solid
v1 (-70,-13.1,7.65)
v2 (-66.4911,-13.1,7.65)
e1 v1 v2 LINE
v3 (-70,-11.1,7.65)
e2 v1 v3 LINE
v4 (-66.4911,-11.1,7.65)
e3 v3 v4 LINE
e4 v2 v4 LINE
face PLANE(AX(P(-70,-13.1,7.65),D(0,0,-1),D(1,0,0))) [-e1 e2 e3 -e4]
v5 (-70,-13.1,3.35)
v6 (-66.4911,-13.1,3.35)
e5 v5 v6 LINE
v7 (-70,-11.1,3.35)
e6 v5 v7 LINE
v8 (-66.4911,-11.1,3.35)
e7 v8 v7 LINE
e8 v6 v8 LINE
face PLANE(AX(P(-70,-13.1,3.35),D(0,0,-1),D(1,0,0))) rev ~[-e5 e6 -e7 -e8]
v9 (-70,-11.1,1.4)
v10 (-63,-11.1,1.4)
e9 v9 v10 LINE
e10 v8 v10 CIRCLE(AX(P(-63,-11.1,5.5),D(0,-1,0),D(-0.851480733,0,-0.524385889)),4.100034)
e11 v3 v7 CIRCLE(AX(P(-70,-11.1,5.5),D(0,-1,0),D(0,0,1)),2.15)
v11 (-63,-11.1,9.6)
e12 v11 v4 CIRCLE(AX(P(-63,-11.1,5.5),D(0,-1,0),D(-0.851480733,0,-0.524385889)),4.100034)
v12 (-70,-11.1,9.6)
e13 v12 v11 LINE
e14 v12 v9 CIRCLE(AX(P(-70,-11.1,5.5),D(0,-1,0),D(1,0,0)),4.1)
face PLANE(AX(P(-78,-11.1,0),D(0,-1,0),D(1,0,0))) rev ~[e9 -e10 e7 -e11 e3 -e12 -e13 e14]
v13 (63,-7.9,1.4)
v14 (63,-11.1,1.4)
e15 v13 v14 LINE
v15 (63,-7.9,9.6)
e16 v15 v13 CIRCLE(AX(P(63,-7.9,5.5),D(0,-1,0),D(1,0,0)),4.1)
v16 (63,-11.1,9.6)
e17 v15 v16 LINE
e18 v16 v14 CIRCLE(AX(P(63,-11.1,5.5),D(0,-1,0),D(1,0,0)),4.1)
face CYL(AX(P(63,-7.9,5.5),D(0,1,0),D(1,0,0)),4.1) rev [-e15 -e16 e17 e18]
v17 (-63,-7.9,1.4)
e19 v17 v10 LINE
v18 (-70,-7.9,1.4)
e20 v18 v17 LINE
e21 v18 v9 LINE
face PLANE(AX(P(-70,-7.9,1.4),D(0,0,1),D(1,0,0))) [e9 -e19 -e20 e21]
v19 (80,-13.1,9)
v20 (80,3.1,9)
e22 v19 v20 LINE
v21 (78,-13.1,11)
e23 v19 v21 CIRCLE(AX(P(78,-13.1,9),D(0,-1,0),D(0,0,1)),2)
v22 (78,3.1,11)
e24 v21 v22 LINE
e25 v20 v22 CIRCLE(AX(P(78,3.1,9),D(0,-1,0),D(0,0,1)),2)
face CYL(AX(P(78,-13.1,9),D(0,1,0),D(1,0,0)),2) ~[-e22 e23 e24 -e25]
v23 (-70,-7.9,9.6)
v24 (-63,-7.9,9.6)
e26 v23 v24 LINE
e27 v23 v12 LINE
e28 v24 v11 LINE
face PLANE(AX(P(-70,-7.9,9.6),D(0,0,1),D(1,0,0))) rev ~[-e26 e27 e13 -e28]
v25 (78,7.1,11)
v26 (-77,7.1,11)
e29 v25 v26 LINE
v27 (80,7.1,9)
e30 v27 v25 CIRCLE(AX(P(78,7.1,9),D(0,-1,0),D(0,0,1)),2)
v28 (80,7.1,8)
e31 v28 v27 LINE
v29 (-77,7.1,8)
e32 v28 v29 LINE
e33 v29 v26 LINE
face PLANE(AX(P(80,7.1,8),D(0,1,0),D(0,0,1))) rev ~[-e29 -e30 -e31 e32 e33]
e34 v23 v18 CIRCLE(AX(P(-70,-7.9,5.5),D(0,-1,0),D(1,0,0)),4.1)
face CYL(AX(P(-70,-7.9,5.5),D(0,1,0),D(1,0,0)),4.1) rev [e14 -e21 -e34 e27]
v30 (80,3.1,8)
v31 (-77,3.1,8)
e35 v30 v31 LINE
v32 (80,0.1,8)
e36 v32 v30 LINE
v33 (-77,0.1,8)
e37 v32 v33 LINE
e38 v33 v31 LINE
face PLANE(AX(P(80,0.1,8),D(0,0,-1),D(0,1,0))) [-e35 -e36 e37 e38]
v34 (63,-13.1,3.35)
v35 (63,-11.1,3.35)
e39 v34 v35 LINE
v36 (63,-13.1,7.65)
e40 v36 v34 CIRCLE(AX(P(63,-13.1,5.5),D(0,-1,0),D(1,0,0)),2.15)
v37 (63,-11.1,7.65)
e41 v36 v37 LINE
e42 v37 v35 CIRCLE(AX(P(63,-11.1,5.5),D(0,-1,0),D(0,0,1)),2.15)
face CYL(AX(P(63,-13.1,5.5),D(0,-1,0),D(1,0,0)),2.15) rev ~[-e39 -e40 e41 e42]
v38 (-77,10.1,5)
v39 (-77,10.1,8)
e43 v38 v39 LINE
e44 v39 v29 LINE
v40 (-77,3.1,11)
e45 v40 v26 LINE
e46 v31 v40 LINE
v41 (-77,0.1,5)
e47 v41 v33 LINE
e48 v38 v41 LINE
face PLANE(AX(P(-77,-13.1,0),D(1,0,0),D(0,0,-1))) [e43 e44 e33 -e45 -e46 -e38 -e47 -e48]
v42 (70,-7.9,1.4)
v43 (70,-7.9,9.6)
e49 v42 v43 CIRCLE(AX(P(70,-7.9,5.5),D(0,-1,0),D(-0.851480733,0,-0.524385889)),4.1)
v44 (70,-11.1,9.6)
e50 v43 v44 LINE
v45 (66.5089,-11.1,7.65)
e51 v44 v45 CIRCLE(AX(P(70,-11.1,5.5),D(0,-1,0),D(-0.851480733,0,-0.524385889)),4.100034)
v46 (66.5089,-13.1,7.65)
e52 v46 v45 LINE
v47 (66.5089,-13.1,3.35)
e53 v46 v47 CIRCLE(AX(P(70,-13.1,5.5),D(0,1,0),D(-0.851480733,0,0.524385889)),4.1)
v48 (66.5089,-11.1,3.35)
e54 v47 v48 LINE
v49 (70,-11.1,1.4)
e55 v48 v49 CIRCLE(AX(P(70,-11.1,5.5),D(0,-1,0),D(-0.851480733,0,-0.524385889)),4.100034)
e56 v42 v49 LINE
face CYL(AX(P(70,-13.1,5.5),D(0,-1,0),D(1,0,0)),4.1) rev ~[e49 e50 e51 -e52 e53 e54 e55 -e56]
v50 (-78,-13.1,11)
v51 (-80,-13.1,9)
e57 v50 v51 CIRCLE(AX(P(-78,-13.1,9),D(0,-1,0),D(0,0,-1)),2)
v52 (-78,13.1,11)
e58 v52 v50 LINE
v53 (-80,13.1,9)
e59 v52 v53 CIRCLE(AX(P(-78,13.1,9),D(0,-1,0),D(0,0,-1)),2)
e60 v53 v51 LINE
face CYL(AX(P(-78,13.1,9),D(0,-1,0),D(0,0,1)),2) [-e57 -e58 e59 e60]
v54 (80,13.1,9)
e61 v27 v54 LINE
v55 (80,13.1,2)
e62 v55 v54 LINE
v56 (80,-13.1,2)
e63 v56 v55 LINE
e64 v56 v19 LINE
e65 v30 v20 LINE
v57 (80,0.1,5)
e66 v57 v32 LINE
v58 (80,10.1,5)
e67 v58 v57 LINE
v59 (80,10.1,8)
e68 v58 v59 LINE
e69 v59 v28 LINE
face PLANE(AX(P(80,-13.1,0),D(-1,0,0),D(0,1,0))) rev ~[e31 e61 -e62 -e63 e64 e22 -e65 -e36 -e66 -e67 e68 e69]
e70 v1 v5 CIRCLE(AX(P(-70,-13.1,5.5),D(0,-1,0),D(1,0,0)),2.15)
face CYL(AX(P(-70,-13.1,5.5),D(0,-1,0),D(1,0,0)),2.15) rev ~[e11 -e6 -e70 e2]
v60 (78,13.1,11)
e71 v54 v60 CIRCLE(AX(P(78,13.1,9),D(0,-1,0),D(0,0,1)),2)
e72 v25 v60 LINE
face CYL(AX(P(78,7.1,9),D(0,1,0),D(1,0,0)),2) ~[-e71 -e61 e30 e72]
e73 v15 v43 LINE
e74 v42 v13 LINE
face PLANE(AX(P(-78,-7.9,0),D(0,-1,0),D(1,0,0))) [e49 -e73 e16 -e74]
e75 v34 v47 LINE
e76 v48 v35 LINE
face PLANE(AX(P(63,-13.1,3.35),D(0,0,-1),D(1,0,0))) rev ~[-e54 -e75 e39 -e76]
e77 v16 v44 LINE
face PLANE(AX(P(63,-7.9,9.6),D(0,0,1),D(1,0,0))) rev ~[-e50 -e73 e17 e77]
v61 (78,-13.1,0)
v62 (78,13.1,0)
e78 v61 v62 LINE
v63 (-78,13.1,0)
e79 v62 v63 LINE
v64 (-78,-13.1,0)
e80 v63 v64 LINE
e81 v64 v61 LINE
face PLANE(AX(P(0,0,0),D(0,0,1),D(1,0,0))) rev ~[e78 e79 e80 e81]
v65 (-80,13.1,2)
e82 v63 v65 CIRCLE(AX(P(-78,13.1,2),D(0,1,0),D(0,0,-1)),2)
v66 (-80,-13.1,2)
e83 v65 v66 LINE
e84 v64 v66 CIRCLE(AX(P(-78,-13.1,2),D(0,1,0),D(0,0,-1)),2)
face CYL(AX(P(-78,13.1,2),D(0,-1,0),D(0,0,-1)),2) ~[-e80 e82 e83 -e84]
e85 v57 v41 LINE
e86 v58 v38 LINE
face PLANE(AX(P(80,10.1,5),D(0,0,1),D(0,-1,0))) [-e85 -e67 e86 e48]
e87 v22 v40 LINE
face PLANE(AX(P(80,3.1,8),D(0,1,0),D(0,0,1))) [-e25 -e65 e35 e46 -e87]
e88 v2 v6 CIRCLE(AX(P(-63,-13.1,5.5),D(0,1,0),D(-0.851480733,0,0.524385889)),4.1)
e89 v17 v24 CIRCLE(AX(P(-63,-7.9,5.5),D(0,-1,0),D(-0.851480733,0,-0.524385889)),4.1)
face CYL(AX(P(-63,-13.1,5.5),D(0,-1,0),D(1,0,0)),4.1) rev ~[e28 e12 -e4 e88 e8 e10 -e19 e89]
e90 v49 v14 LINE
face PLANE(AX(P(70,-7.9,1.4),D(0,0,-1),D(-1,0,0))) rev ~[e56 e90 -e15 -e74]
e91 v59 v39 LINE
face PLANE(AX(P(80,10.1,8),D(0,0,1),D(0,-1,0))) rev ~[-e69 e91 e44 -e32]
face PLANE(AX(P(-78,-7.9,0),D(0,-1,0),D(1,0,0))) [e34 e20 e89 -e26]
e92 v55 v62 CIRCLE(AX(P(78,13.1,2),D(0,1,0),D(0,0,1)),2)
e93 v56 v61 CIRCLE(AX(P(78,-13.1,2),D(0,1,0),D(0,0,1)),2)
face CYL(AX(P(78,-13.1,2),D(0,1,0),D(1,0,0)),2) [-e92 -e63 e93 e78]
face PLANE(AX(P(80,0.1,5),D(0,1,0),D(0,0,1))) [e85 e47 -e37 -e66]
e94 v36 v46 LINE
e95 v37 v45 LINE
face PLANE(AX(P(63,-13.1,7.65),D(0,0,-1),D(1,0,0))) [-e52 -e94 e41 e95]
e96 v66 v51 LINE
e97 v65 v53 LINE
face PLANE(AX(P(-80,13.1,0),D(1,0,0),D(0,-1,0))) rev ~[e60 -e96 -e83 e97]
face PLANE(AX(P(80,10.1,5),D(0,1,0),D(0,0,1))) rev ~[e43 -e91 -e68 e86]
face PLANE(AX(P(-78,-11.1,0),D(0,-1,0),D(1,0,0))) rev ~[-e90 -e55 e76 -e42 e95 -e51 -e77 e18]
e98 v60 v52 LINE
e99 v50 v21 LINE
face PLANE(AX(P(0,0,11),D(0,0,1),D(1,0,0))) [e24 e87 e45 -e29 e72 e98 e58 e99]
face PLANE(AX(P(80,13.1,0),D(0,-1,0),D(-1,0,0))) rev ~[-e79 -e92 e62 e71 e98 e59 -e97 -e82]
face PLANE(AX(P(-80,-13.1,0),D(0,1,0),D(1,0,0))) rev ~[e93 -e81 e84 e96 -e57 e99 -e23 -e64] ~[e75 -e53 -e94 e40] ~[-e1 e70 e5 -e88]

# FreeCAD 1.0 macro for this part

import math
import FreeCAD as App
import Part
import Sketcher
Q = App.Units.Quantity


def edges_at(feature, points):
    """Names of the edges that pass closest to the given points."""
    edges = feature.Shape.Edges
    near = lambda p: min(range(len(edges)), key=lambda i: edges[i].distToShape(Part.Vertex(*p))[0])
    return sorted({f"Edge{near(p) + 1}" for p in points})

doc = App.newDocument("Part")
params = doc.addObject("Spreadsheet::Sheet", "Params")
for row, (alias, value) in enumerate([
    ("sketch1_width", "160 mm"),
    ("sketch1_height", "26.2 mm"),
    ("pad1_length", "11 mm"),
    ("sketch2_width", "3 mm"),
    ("sketch2_width2", "10 mm"),
    ("pocket1_length", "157 mm"),
    ("fillet_radius", "2 mm"),
    ("sketch3_radius", "4.1 mm"),
    ("sketch3_radius2", "2.15 mm"),
    ("pocket2_length", "5.2 mm"),
    ("sketch4_radius", "4.1 mm"),
    ("sketch4_width", "7 mm"),
    ("pocket3_length", "3.2 mm"),
], start=1):
    params.set(f"A{row}", alias)
    params.set(f"B{row}", "=" + value)
    params.setAlias(f"B{row}", alias)

body = doc.addObject("PartDesign::Body", "Body")

sketch1 = body.newObject("Sketcher::SketchObject", "Sketch")
sketch1.AttachmentSupport = (doc.getObject("XY_Plane"), [""])
sketch1.MapMode = "FlatFace"
sketch1.addGeometry([
    Part.LineSegment(App.Vector(80, -13, 0), App.Vector(80, 13, 0)),
    Part.LineSegment(App.Vector(80, 13, 0), App.Vector(-80, 13, 0)),
    Part.LineSegment(App.Vector(-80, 13, 0), App.Vector(-80, -13, 0)),
    Part.LineSegment(App.Vector(-80, -13, 0), App.Vector(80, -13, 0)),
], False)
sketch1.addConstraint([
    Sketcher.Constraint("Coincident", 0, 2, 1, 1),
    Sketcher.Constraint("Coincident", 1, 2, 2, 1),
    Sketcher.Constraint("Coincident", 2, 2, 3, 1),
    Sketcher.Constraint("Coincident", 3, 2, 0, 1),
    Sketcher.Constraint("Vertical", 0),
    Sketcher.Constraint("Horizontal", 1),
    Sketcher.Constraint("Vertical", 2),
    Sketcher.Constraint("Horizontal", 3),
    Sketcher.Constraint("Symmetric", 0, 2, 2, 2, -1, 1),
    Sketcher.Constraint("DistanceX", 1, 2, 1, 1, Q("160 mm")),
    Sketcher.Constraint("DistanceY", 0, 1, 0, 2, Q("26.2 mm")),
])
sketch1.setExpression("Constraints[9]", "Params.sketch1_width")
sketch1.setExpression("Constraints[10]", "Params.sketch1_height")
pad1 = body.newObject("PartDesign::Pad", "Pad")
pad1.Profile = sketch1
pad1.setExpression("Length", "Params.pad1_length")

sketch2 = body.newObject("Sketcher::SketchObject", "Sketch001")
sketch2.AttachmentSupport = (doc.getObject("YZ_Plane"), [""])
sketch2.MapMode = "FlatFace"
sketch2.AttachmentOffset = App.Placement(App.Vector(0, 0, 80), App.Rotation())
sketch2.addGeometry([
    Part.LineSegment(App.Vector(0.1, 5, 0), App.Vector(10.1, 5, 0)),
    Part.LineSegment(App.Vector(10.1, 5, 0), App.Vector(10.1, 8, 0)),
    Part.LineSegment(App.Vector(10.1, 8, 0), App.Vector(7.1, 8, 0)),
    Part.LineSegment(App.Vector(7.1, 8, 0), App.Vector(7.1, 11, 0)),
    Part.LineSegment(App.Vector(7.1, 11, 0), App.Vector(3.1, 11, 0)),
    Part.LineSegment(App.Vector(3.1, 11, 0), App.Vector(3.1, 8, 0)),
    Part.LineSegment(App.Vector(3.1, 8, 0), App.Vector(0.1, 8, 0)),
    Part.LineSegment(App.Vector(0.1, 8, 0), App.Vector(0.1, 5, 0)),
], False)
sketch2.addConstraint([
    Sketcher.Constraint("Coincident", 0, 2, 1, 1),
    Sketcher.Constraint("Coincident", 1, 2, 2, 1),
    Sketcher.Constraint("Coincident", 2, 2, 3, 1),
    Sketcher.Constraint("Coincident", 3, 2, 4, 1),
    Sketcher.Constraint("Coincident", 4, 2, 5, 1),
    Sketcher.Constraint("Coincident", 5, 2, 6, 1),
    Sketcher.Constraint("Coincident", 6, 2, 7, 1),
    Sketcher.Constraint("Coincident", 7, 2, 0, 1),
    Sketcher.Constraint("Horizontal", 0),
    Sketcher.Constraint("Vertical", 1),
    Sketcher.Constraint("Horizontal", 2),
    Sketcher.Constraint("Vertical", 3),
    Sketcher.Constraint("Horizontal", 4),
    Sketcher.Constraint("Vertical", 5),
    Sketcher.Constraint("Horizontal", 6),
    Sketcher.Constraint("Vertical", 7),
    Sketcher.Constraint("Horizontal", 2, 2, 5, 2),
    Sketcher.Constraint("Equal", 2, 6),
    Sketcher.Constraint("Equal", 6, 1),
    Sketcher.Constraint("Equal", 1, 3),
    Sketcher.Constraint("DistanceX", 2, 2, 2, 1, Q("3 mm")),
    Sketcher.Constraint("DistanceX", 0, 1, 0, 2, Q("10 mm")),
    Sketcher.Constraint("DistanceY", -1, 1, 0, 2, Q("5 mm")),
    Sketcher.Constraint("DistanceX", -1, 1, 0, 2, Q("10.1 mm")),
])
sketch2.setExpression("Constraints[20]", "Params.sketch2_width")
sketch2.setExpression("Constraints[21]", "Params.sketch2_width2")
pocket1 = body.newObject("PartDesign::Pocket", "Pocket")
pocket1.Profile = sketch2
pocket1.setExpression("Length", "Params.pocket1_length")
doc.recompute()

fillet = body.newObject("PartDesign::Fillet", "Fillet")
fillet.Base = (pocket1, edges_at(pocket1, [
    (80, 10.1, 11),
    (80, -5, 11),
    (-80, 0, 11),
    (80, 0, 0),
    (-80, 0, 0),
]))
fillet.setExpression("Radius", "Params.fillet_radius")

sketch3 = body.newObject("Sketcher::SketchObject", "Sketch002")
sketch3.AttachmentSupport = (doc.getObject("XZ_Plane"), [""])
sketch3.MapMode = "FlatFace"
sketch3.AttachmentOffset = App.Placement(App.Vector(0, 0, 13.1), App.Rotation())
sketch3.addGeometry([
    Part.ArcOfCircle(Part.Circle(App.Vector(70, 5.5, 0), App.Vector(0, 0, 1), 4.1), math.radians(-148), math.radians(148)),
    Part.LineSegment(App.Vector(66.5, 7.7, 0), App.Vector(63, 7.7, 0)),
    Part.ArcOfCircle(Part.Circle(App.Vector(63, 5.5, 0), App.Vector(0, 0, 1), 2.1), math.radians(90), math.radians(270)),
    Part.LineSegment(App.Vector(63, 3.4, 0), App.Vector(66.5, 3.4, 0)),
    Part.ArcOfCircle(Part.Circle(App.Vector(-63, 5.5, 0), App.Vector(0, 0, 1), 4.1), math.radians(-148), math.radians(148)),
    Part.LineSegment(App.Vector(-66.5, 7.7, 0), App.Vector(-70, 7.7, 0)),
    Part.ArcOfCircle(Part.Circle(App.Vector(-70, 5.5, 0), App.Vector(0, 0, 1), 2.1), math.radians(90), math.radians(270)),
    Part.LineSegment(App.Vector(-70, 3.4, 0), App.Vector(-66.5, 3.4, 0)),
], False)
sketch3.addConstraint([
    Sketcher.Constraint("Coincident", 0, 2, 1, 1),
    Sketcher.Constraint("Tangent", 1, 2, 2, 1),
    Sketcher.Constraint("Tangent", 2, 2, 3, 1),
    Sketcher.Constraint("Coincident", 3, 2, 0, 1),
    Sketcher.Constraint("Coincident", 4, 2, 5, 1),
    Sketcher.Constraint("Tangent", 5, 2, 6, 1),
    Sketcher.Constraint("Tangent", 6, 2, 7, 1),
    Sketcher.Constraint("Coincident", 7, 2, 4, 1),
    Sketcher.Constraint("Horizontal", 1),
    Sketcher.Constraint("Horizontal", 3),
    Sketcher.Constraint("Horizontal", 5),
    Sketcher.Constraint("Horizontal", 7),
    Sketcher.Constraint("Equal", 0, 4),
    Sketcher.Constraint("Equal", 2, 6),
    Sketcher.Constraint("Symmetric", 2, 3, 4, 3, -2),
    Sketcher.Constraint("Symmetric", 0, 3, 6, 3, -2),
    Sketcher.Constraint("Horizontal", 0, 3, 2, 3),
    Sketcher.Constraint("Radius", 0, Q("4.1 mm")),
    Sketcher.Constraint("Radius", 2, Q("2.15 mm")),
    Sketcher.Constraint("DistanceX", 2, 3, 0, 3, Q("7 mm")),
    Sketcher.Constraint("DistanceX", -1, 1, 0, 3, Q("70 mm")),
    Sketcher.Constraint("DistanceY", -1, 1, 0, 3, Q("5.5 mm")),
])
sketch3.setExpression("Constraints[17]", "Params.sketch3_radius")
sketch3.setExpression("Constraints[18]", "Params.sketch3_radius2")
pocket2 = body.newObject("PartDesign::Pocket", "Pocket001")
pocket2.Profile = sketch3
pocket2.setExpression("Length", "Params.pocket2_length")

sketch4 = body.newObject("Sketcher::SketchObject", "Sketch003")
sketch4.AttachmentSupport = (doc.getObject("XZ_Plane"), [""])
sketch4.MapMode = "FlatFace"
sketch4.AttachmentOffset = App.Placement(App.Vector(0, 0, 7.9), App.Rotation())
sketch4.addGeometry([
    Part.LineSegment(App.Vector(-66.509, 7.65, 0), App.Vector(-66.491, 7.65, 0)),
    Part.ArcOfCircle(Part.Circle(App.Vector(-63, 5.5, 0), App.Vector(0, 0, 1), 4.1), math.radians(90), math.radians(148)),
    Part.LineSegment(App.Vector(-63, 9.6, 0), App.Vector(-70, 9.6, 0)),
    Part.ArcOfCircle(Part.Circle(App.Vector(-70, 5.5, 0), App.Vector(0, 0, 1), 4.1), math.radians(90), math.radians(270)),
    Part.LineSegment(App.Vector(-70, 1.4, 0), App.Vector(-63, 1.4, 0)),
    Part.ArcOfCircle(Part.Circle(App.Vector(-63, 5.5, 0), App.Vector(0, 0, 1), 4.1), math.radians(-148), math.radians(-90)),
    Part.LineSegment(App.Vector(-66.491, 3.35, 0), App.Vector(-66.509, 3.35, 0)),
    Part.ArcOfCircle(Part.Circle(App.Vector(-70, 5.5, 0), App.Vector(0, 0, 1), 4.1), math.radians(-32), math.radians(32)),
    Part.LineSegment(App.Vector(66.491, 7.65, 0), App.Vector(66.509, 7.65, 0)),
    Part.ArcOfCircle(Part.Circle(App.Vector(70, 5.5, 0), App.Vector(0, 0, 1), 4.1), math.radians(90), math.radians(148)),
    Part.LineSegment(App.Vector(70, 9.6, 0), App.Vector(63, 9.6, 0)),
    Part.ArcOfCircle(Part.Circle(App.Vector(63, 5.5, 0), App.Vector(0, 0, 1), 4.1), math.radians(90), math.radians(270)),
    Part.LineSegment(App.Vector(63, 1.4, 0), App.Vector(70, 1.4, 0)),
    Part.ArcOfCircle(Part.Circle(App.Vector(70, 5.5, 0), App.Vector(0, 0, 1), 4.1), math.radians(-148), math.radians(-90)),
    Part.LineSegment(App.Vector(66.509, 3.35, 0), App.Vector(66.491, 3.35, 0)),
    Part.ArcOfCircle(Part.Circle(App.Vector(63, 5.5, 0), App.Vector(0, 0, 1), 4.1), math.radians(-32), math.radians(32)),
], False)
sketch4.addConstraint([
    Sketcher.Constraint("Coincident", 0, 2, 1, 2),
    Sketcher.Constraint("Tangent", 1, 1, 2, 1),
    Sketcher.Constraint("Tangent", 2, 2, 3, 1),
    Sketcher.Constraint("Tangent", 3, 2, 4, 1),
    Sketcher.Constraint("Tangent", 4, 2, 5, 2),
    Sketcher.Constraint("Coincident", 5, 1, 6, 1),
    Sketcher.Constraint("Coincident", 6, 2, 7, 1),
    Sketcher.Constraint("Coincident", 7, 2, 0, 1),
    Sketcher.Constraint("Coincident", 8, 2, 9, 2),
    Sketcher.Constraint("Tangent", 9, 1, 10, 1),
    Sketcher.Constraint("Tangent", 10, 2, 11, 1),
    Sketcher.Constraint("Tangent", 11, 2, 12, 1),
    Sketcher.Constraint("Tangent", 12, 2, 13, 2),
    Sketcher.Constraint("Coincident", 13, 1, 14, 1),
    Sketcher.Constraint("Coincident", 14, 2, 15, 1),
    Sketcher.Constraint("Coincident", 15, 2, 8, 1),
    Sketcher.Constraint("Horizontal", 0),
    Sketcher.Constraint("Horizontal", 2),
    Sketcher.Constraint("Horizontal", 4),
    Sketcher.Constraint("Horizontal", 6),
    Sketcher.Constraint("Horizontal", 8),
    Sketcher.Constraint("Horizontal", 10),
    Sketcher.Constraint("Horizontal", 12),
    Sketcher.Constraint("Horizontal", 14),
    Sketcher.Constraint("Coincident", 5, 3, 1, 3),
    Sketcher.Constraint("Coincident", 7, 3, 3, 3),
    Sketcher.Constraint("Coincident", 13, 3, 9, 3),
    Sketcher.Constraint("Coincident", 15, 3, 11, 3),
    Sketcher.Constraint("Equal", 1, 3),
    Sketcher.Constraint("Equal", 5, 7),
    Sketcher.Constraint("Equal", 7, 9),
    Sketcher.Constraint("Equal", 9, 11),
    Sketcher.Constraint("Equal", 13, 15),
    Sketcher.Constraint("Symmetric", 3, 3, 9, 3, -2),
    Sketcher.Constraint("Symmetric", 5, 1, 14, 2, -2),
    Sketcher.Constraint("Horizontal", 7, 2, 8, 2),
    Sketcher.Constraint("Vertical", 0, 2, 5, 1),
    Sketcher.Constraint("Radius", 1, Q("4.1 mm")),
    Sketcher.Constraint("DistanceX", 2, 2, 2, 1, Q("7 mm")),
    Sketcher.Constraint("DistanceX", 1, 3, -1, 1, Q("63 mm")),
    Sketcher.Constraint("DistanceY", -1, 1, 1, 3, Q("5.5 mm")),
    Sketcher.Constraint("DistanceY", -1, 1, 0, 2, Q("7.65 mm")),
])
sketch4.setExpression("Constraints[37]", "Params.sketch4_radius")
sketch4.setExpression("Constraints[38]", "Params.sketch4_width")
pocket3 = body.newObject("PartDesign::Pocket", "Pocket002")
pocket3.Profile = sketch4
pocket3.setExpression("Length", "Params.pocket3_length")
pocket3.Reversed = True

doc.recompute()
